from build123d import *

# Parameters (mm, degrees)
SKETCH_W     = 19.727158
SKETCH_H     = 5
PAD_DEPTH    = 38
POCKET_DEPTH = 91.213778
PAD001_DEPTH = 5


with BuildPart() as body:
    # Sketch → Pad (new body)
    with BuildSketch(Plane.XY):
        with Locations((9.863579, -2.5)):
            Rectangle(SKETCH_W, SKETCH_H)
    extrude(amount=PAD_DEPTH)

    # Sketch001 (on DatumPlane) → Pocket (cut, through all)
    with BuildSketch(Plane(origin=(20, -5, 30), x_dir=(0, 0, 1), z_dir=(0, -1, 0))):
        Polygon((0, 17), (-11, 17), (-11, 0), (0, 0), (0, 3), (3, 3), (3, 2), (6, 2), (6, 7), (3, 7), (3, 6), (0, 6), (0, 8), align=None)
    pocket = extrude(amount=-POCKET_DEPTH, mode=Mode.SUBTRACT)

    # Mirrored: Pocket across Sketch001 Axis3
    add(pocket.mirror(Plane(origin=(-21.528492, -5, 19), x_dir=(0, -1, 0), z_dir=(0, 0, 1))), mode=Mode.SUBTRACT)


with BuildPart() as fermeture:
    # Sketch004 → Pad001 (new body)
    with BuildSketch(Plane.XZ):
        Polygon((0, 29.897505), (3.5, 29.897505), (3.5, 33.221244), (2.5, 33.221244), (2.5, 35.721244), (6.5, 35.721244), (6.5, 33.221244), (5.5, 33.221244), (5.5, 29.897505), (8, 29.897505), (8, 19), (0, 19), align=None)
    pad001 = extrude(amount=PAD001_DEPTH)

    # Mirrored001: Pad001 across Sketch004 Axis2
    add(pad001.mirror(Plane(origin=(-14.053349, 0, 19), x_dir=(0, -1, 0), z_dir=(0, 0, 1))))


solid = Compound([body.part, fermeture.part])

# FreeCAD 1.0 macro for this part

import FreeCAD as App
import Part
import Sketcher
from FreeCAD import Vector
Q = App.Units.Quantity


def add_polygon(sketch, points):
    """Adds a closed chain of lines whose ends are joined by coincident constraints."""
    first, n = sketch.GeometryCount, len(points)
    for a, b in zip(points, points[1:] + points[:1]):
        sketch.addGeometry(Part.LineSegment(App.Vector(*a, 0), App.Vector(*b, 0)), False)
    for i in range(n):
        sketch.addConstraint(Sketcher.Constraint("Coincident", first + i, 2, first + (i + 1) % n, 1))

doc = App.newDocument("Part")
body = doc.addObject("PartDesign::Body", "Body")

# Sketch on XY plane
sketch1 = doc.addObject("Sketcher::SketchObject", "Sketch")
body.addObject(sketch1)
sketch1.AttachmentSupport = (doc.XY_Plane, [""])
sketch1.MapMode = "FlatFace"
add_polygon(sketch1, [(0, 0), (0, -5), (20, -5), (20, 0)])  # lines 0-3
sketch1.addConstraint(Sketcher.Constraint("Vertical", 0))
sketch1.addConstraint(Sketcher.Constraint("Horizontal", 1))
sketch1.addConstraint(Sketcher.Constraint("Vertical", 2))
sketch1.addConstraint(Sketcher.Constraint("Horizontal", 3))
sketch1.addConstraint(Sketcher.Constraint("Coincident", 3, 2, -1, 1))
sketch1.addConstraint(Sketcher.Constraint("DistanceY", 0, 2, 0, 1, Q("5 mm")))
sketch1.addConstraint(Sketcher.Constraint("DistanceX", 1, 1, 1, 2, Q("19.727158 mm")))
pad1 = doc.addObject("PartDesign::Pad", "Pad")
body.addObject(pad1)
pad1.Profile = sketch1
pad1.Length = 38

# Sketch on XZ plane
sketch2 = doc.addObject("Sketcher::SketchObject", "Sketch001")
body.addObject(sketch2)
sketch2.AttachmentSupport = (doc.XZ_Plane, [""])
sketch2.MapMode = "FlatFace"
sketch2.AttachmentOffset = App.Placement(Vector(0, 0, 5), App.Rotation())
add_polygon(sketch2, [(3, 30), (3, 19), (20, 19), (20, 30), (17, 30), (17, 33), (18, 33), (18, 36), (13, 36), (13, 33), (14, 33), (14, 30)])  # lines 0-11
sketch2.addConstraint(Sketcher.Constraint("Vertical", 0))
sketch2.addConstraint(Sketcher.Constraint("Horizontal", 1))
sketch2.addConstraint(Sketcher.Constraint("Vertical", 2))
sketch2.addConstraint(Sketcher.Constraint("Horizontal", 3))
sketch2.addConstraint(Sketcher.Constraint("Vertical", 4))
sketch2.addConstraint(Sketcher.Constraint("Horizontal", 5))
sketch2.addConstraint(Sketcher.Constraint("Vertical", 6))
sketch2.addConstraint(Sketcher.Constraint("Horizontal", 7))
sketch2.addConstraint(Sketcher.Constraint("Vertical", 8))
sketch2.addConstraint(Sketcher.Constraint("Horizontal", 9))
sketch2.addConstraint(Sketcher.Constraint("Vertical", 10))
sketch2.addConstraint(Sketcher.Constraint("Horizontal", 11))
sketch2.addConstraint(Sketcher.Constraint("Horizontal", 5, 2, 8, 2))
sketch2.addConstraint(Sketcher.Constraint("Horizontal", 3, 2, 10, 2))
sketch2.addConstraint(Sketcher.Constraint("Equal", 5, 9))
sketch2.addConstraint(Sketcher.Constraint("Equal", 11, 0))
sketch2.addConstraint(Sketcher.Constraint("Equal", 3, 4))
sketch2.addConstraint(Sketcher.Constraint("Equal", 4, 6))
sketch2.addConstraint(Sketcher.Constraint("DistanceX", 1, 1, 1, 2, Q("17 mm")))
sketch2.addConstraint(Sketcher.Constraint("DistanceX", 3, 2, 3, 1, Q("3 mm")))
sketch2.addConstraint(Sketcher.Constraint("DistanceX", 5, 1, 5, 2, Q("1 mm")))
sketch2.addConstraint(Sketcher.Constraint("DistanceX", 7, 2, 7, 1, Q("5 mm")))
sketch2.addConstraint(Sketcher.Constraint("DistanceX", -1, 1, 0, 2, Q("3 mm")))
sketch2.addConstraint(Sketcher.Constraint("DistanceY", -1, 1, 0, 2, Q("19 mm")))
pocket1 = doc.addObject("PartDesign::Pocket", "Pocket")
body.addObject(pocket1)
pocket1.Profile = sketch2
pocket1.Type = "ThroughAll"
doc.recompute()

datumplane = doc.addObject("PartDesign::Plane", "DatumPlane")
body.addObject(datumplane)
datumplane.AttachmentSupport = (doc.XY_Plane, [""])
datumplane.MapMode = "FlatFace"
datumplane.AttachmentOffset = App.Placement(Vector(0, 0, 19), App.Rotation())
mirrored = doc.addObject("PartDesign::Mirrored", "Mirrored")
body.addObject(mirrored)
mirrored.Originals = [pocket1]
mirrored.MirrorPlane = (datumplane, [""])
body.Tip = mirrored
body2 = doc.addObject("PartDesign::Body", "Body001")

# Sketch on XZ plane
sketch3 = doc.addObject("Sketcher::SketchObject", "Sketch002")
body2.addObject(sketch3)
sketch3.AttachmentSupport = (doc.getObject("XZ_Plane001"), [""])
sketch3.MapMode = "FlatFace"
add_polygon(sketch3, [(3.5, 29.9), (0, 29.9), (0, 19), (8, 19), (8, 29.9), (5.5, 29.9), (5.5, 33.2), (6.5, 33.2), (6.5, 35.7), (2.5, 35.7), (2.5, 33.2), (3.5, 33.2)])  # lines 0-11
sketch3.addConstraint(Sketcher.Constraint("Horizontal", 0))
sketch3.addConstraint(Sketcher.Constraint("Vertical", 1))
sketch3.addConstraint(Sketcher.Constraint("Horizontal", 2))
sketch3.addConstraint(Sketcher.Constraint("Vertical", 3))
sketch3.addConstraint(Sketcher.Constraint("Horizontal", 4))
sketch3.addConstraint(Sketcher.Constraint("Vertical", 5))
sketch3.addConstraint(Sketcher.Constraint("Horizontal", 6))
sketch3.addConstraint(Sketcher.Constraint("Vertical", 7))
sketch3.addConstraint(Sketcher.Constraint("Horizontal", 8))
sketch3.addConstraint(Sketcher.Constraint("Vertical", 9))
sketch3.addConstraint(Sketcher.Constraint("Horizontal", 10))
sketch3.addConstraint(Sketcher.Constraint("Vertical", 11))
sketch3.addConstraint(Sketcher.Constraint("PointOnObject", 0, 2, -2))
sketch3.addConstraint(Sketcher.Constraint("Horizontal", 0, 2, 3, 2))
sketch3.addConstraint(Sketcher.Constraint("Horizontal", 6, 2, 9, 2))
sketch3.addConstraint(Sketcher.Constraint("Equal", 6, 10))
sketch3.addConstraint(Sketcher.Constraint("Equal", 4, 7))
sketch3.addConstraint(Sketcher.Constraint("DistanceX", 2, 1, 2, 2, Q("8 mm")))
sketch3.addConstraint(Sketcher.Constraint("DistanceX", 6, 1, 6, 2, Q("1 mm")))
sketch3.addConstraint(Sketcher.Constraint("DistanceX", 8, 2, 8, 1, Q("4 mm")))
sketch3.addConstraint(Sketcher.Constraint("DistanceX", 0, 2, 0, 1, Q("3.5 mm")))
sketch3.addConstraint(Sketcher.Constraint("DistanceY", -1, 1, 1, 2, Q("19 mm")))
sketch3.addConstraint(Sketcher.Constraint("DistanceY", 5, 1, 5, 2, Q("3.323739 mm")))
sketch3.addConstraint(Sketcher.Constraint("DistanceY", 1, 2, 1, 1, Q("10.897505 mm")))
pad2 = doc.addObject("PartDesign::Pad", "Pad001")
body2.addObject(pad2)
pad2.Profile = sketch3
pad2.Length = 5
doc.recompute()

datumplane2 = doc.addObject("PartDesign::Plane", "DatumPlane001")
body2.addObject(datumplane2)
datumplane2.AttachmentSupport = (doc.getObject("XY_Plane001"), [""])
datumplane2.MapMode = "FlatFace"
datumplane2.AttachmentOffset = App.Placement(Vector(0, 0, 19), App.Rotation())
mirrored2 = doc.addObject("PartDesign::Mirrored", "Mirrored001")
body2.addObject(mirrored2)
mirrored2.Originals = [pad2]
mirrored2.MirrorPlane = (datumplane2, [""])
body2.Tip = mirrored2

doc.recompute()
